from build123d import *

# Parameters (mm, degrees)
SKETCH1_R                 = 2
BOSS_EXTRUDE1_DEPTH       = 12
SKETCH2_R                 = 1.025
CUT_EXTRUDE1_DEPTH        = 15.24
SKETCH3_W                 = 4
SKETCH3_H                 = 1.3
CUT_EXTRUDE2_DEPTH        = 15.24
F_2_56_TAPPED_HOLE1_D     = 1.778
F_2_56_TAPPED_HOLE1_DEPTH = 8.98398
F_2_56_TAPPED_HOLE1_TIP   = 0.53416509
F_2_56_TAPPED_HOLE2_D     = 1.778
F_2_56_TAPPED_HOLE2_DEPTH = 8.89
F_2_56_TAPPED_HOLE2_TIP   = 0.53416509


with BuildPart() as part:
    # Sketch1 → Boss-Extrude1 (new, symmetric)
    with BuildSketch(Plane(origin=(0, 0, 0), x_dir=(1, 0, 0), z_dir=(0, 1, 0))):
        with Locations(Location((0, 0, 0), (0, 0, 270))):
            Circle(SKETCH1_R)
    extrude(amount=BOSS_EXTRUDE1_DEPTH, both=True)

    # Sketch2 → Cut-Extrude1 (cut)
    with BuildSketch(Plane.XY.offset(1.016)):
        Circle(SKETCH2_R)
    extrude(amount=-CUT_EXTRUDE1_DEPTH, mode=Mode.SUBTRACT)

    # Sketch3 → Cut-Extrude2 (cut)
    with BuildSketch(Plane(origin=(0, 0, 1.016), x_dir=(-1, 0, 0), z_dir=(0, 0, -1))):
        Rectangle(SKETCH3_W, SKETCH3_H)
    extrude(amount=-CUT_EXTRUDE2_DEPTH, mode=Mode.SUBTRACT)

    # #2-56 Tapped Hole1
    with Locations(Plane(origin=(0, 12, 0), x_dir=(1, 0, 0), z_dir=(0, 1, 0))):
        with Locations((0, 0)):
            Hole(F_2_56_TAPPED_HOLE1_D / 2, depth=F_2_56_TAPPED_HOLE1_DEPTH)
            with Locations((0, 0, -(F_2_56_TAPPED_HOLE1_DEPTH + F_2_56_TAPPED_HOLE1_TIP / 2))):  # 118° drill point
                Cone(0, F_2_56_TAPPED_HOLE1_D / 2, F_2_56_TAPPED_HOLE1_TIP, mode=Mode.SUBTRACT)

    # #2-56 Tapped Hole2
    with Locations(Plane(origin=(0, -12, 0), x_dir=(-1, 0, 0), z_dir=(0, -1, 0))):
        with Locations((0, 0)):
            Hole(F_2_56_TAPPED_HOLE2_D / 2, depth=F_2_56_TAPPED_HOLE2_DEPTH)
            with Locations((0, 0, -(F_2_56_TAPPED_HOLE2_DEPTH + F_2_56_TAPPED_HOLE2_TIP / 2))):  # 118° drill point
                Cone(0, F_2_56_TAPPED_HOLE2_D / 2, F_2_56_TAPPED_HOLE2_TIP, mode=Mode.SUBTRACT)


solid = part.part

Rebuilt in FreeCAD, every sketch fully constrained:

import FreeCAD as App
import Part
import Sketcher
Q = App.Units.Quantity

doc = App.newDocument("Part")
body = doc.addObject("PartDesign::Body", "Body")

sketch1 = doc.addObject("Sketcher::SketchObject", "Sketch")
body.addObject(sketch1)
sketch1.AttachmentSupport = (doc.XZ_Plane, [""])
sketch1.MapMode = "FlatFace"
sketch1.addGeometry(Part.Circle(App.Vector(0, 0, 0), App.Vector(0, 0, 1), 2), False)
sketch1.addConstraint([
    Sketcher.Constraint("Coincident", 0, 3, -1, 1),
    Sketcher.Constraint("Diameter", 0, Q("4 mm")),
])
pad1 = doc.addObject("PartDesign::Pad", "Pad")
body.addObject(pad1)
pad1.Profile = sketch1
pad1.Length = 24
pad1.Midplane = True

sketch2 = doc.addObject("Sketcher::SketchObject", "Sketch001")
body.addObject(sketch2)
sketch2.AttachmentSupport = (doc.XY_Plane, [""])
sketch2.MapMode = "FlatFace"
sketch2.AttachmentOffset = App.Placement(App.Vector(0, 0, 1.016), App.Rotation())
sketch2.addGeometry(Part.Circle(App.Vector(0, 0, 0), App.Vector(0, 0, 1), 1), False)
sketch2.addConstraint([
    Sketcher.Constraint("Coincident", 0, 3, -1, 1),
    Sketcher.Constraint("Diameter", 0, Q("2.05 mm")),
])
pocket1 = doc.addObject("PartDesign::Pocket", "Pocket")
body.addObject(pocket1)
pocket1.Profile = sketch2
pocket1.Length = 15.24

sketch3 = doc.addObject("Sketcher::SketchObject", "Sketch002")
body.addObject(sketch3)
sketch3.AttachmentSupport = (doc.XY_Plane, [""])
sketch3.MapMode = "FlatFace"
sketch3.AttachmentOffset = App.Placement(App.Vector(0, 0, 1.016), App.Rotation())
sketch3.addGeometry([
    Part.LineSegment(App.Vector(2, 0.7, 0), App.Vector(2, -0.7, 0)),
    Part.LineSegment(App.Vector(2, -0.7, 0), App.Vector(-2, -0.7, 0)),
    Part.LineSegment(App.Vector(-2, -0.7, 0), App.Vector(-2, 0.7, 0)),
    Part.LineSegment(App.Vector(-2, 0.7, 0), App.Vector(2, 0.7, 0)),
], False)
sketch3.addConstraint([
    Sketcher.Constraint("Coincident", 0, 2, 1, 1),
    Sketcher.Constraint("Coincident", 1, 2, 2, 1),
    Sketcher.Constraint("Coincident", 2, 2, 3, 1),
    Sketcher.Constraint("Coincident", 3, 2, 0, 1),
    Sketcher.Constraint("Vertical", 0),
    Sketcher.Constraint("Horizontal", 1),
    Sketcher.Constraint("Vertical", 2),
    Sketcher.Constraint("Horizontal", 3),
    Sketcher.Constraint("Symmetric", 0, 2, 2, 2, -1, 1),
    Sketcher.Constraint("DistanceX", 1, 2, 1, 1, Q("4 mm")),
    Sketcher.Constraint("DistanceY", 0, 2, 0, 1, Q("1.3 mm")),
])
pocket2 = doc.addObject("PartDesign::Pocket", "Pocket001")
body.addObject(pocket2)
pocket2.Profile = sketch3
pocket2.Length = 15.24
pocket2.Reversed = True

sketch4 = doc.addObject("Sketcher::SketchObject", "Sketch003")
body.addObject(sketch4)
sketch4.AttachmentSupport = (doc.XZ_Plane, [""])
sketch4.MapMode = "FlatFace"
sketch4.AttachmentOffset = App.Placement(App.Vector(0, 0, -12), App.Rotation())
sketch4.addGeometry(Part.Circle(App.Vector(0, 0, 0), App.Vector(0, 0, 1), 0.9), False)
sketch4.addConstraint([
    Sketcher.Constraint("Coincident", 0, 3, -1, 1),
    Sketcher.Constraint("Diameter", 0, Q("1.778 mm")),
])
doc.recompute()
hole = doc.addObject("PartDesign::Hole", "Hole")
body.addObject(hole)
hole.Profile = sketch4
hole.ThreadType = "None"
hole.Diameter = 1.778
hole.DepthType = "Dimension"
hole.Depth = 8.98398
hole.DrillPoint = "Angled"
hole.DrillPointAngle = 118
hole.Reversed = True

sketch5 = doc.addObject("Sketcher::SketchObject", "Sketch004")
body.addObject(sketch5)
sketch5.AttachmentSupport = (doc.XZ_Plane, [""])
sketch5.MapMode = "FlatFace"
sketch5.AttachmentOffset = App.Placement(App.Vector(0, 0, 12), App.Rotation())
sketch5.addGeometry(Part.Circle(App.Vector(0, 0, 0), App.Vector(0, 0, 1), 0.9), False)
sketch5.addConstraint([
    Sketcher.Constraint("Coincident", 0, 3, -1, 1),
    Sketcher.Constraint("Diameter", 0, Q("1.778 mm")),
])
doc.recompute()
hole2 = doc.addObject("PartDesign::Hole", "Hole001")
body.addObject(hole2)
hole2.Profile = sketch5
hole2.ThreadType = "None"
hole2.Diameter = 1.778
hole2.DepthType = "Dimension"
hole2.Depth = 8.89
hole2.DrillPoint = "Angled"
hole2.DrillPointAngle = 118

doc.recompute()
